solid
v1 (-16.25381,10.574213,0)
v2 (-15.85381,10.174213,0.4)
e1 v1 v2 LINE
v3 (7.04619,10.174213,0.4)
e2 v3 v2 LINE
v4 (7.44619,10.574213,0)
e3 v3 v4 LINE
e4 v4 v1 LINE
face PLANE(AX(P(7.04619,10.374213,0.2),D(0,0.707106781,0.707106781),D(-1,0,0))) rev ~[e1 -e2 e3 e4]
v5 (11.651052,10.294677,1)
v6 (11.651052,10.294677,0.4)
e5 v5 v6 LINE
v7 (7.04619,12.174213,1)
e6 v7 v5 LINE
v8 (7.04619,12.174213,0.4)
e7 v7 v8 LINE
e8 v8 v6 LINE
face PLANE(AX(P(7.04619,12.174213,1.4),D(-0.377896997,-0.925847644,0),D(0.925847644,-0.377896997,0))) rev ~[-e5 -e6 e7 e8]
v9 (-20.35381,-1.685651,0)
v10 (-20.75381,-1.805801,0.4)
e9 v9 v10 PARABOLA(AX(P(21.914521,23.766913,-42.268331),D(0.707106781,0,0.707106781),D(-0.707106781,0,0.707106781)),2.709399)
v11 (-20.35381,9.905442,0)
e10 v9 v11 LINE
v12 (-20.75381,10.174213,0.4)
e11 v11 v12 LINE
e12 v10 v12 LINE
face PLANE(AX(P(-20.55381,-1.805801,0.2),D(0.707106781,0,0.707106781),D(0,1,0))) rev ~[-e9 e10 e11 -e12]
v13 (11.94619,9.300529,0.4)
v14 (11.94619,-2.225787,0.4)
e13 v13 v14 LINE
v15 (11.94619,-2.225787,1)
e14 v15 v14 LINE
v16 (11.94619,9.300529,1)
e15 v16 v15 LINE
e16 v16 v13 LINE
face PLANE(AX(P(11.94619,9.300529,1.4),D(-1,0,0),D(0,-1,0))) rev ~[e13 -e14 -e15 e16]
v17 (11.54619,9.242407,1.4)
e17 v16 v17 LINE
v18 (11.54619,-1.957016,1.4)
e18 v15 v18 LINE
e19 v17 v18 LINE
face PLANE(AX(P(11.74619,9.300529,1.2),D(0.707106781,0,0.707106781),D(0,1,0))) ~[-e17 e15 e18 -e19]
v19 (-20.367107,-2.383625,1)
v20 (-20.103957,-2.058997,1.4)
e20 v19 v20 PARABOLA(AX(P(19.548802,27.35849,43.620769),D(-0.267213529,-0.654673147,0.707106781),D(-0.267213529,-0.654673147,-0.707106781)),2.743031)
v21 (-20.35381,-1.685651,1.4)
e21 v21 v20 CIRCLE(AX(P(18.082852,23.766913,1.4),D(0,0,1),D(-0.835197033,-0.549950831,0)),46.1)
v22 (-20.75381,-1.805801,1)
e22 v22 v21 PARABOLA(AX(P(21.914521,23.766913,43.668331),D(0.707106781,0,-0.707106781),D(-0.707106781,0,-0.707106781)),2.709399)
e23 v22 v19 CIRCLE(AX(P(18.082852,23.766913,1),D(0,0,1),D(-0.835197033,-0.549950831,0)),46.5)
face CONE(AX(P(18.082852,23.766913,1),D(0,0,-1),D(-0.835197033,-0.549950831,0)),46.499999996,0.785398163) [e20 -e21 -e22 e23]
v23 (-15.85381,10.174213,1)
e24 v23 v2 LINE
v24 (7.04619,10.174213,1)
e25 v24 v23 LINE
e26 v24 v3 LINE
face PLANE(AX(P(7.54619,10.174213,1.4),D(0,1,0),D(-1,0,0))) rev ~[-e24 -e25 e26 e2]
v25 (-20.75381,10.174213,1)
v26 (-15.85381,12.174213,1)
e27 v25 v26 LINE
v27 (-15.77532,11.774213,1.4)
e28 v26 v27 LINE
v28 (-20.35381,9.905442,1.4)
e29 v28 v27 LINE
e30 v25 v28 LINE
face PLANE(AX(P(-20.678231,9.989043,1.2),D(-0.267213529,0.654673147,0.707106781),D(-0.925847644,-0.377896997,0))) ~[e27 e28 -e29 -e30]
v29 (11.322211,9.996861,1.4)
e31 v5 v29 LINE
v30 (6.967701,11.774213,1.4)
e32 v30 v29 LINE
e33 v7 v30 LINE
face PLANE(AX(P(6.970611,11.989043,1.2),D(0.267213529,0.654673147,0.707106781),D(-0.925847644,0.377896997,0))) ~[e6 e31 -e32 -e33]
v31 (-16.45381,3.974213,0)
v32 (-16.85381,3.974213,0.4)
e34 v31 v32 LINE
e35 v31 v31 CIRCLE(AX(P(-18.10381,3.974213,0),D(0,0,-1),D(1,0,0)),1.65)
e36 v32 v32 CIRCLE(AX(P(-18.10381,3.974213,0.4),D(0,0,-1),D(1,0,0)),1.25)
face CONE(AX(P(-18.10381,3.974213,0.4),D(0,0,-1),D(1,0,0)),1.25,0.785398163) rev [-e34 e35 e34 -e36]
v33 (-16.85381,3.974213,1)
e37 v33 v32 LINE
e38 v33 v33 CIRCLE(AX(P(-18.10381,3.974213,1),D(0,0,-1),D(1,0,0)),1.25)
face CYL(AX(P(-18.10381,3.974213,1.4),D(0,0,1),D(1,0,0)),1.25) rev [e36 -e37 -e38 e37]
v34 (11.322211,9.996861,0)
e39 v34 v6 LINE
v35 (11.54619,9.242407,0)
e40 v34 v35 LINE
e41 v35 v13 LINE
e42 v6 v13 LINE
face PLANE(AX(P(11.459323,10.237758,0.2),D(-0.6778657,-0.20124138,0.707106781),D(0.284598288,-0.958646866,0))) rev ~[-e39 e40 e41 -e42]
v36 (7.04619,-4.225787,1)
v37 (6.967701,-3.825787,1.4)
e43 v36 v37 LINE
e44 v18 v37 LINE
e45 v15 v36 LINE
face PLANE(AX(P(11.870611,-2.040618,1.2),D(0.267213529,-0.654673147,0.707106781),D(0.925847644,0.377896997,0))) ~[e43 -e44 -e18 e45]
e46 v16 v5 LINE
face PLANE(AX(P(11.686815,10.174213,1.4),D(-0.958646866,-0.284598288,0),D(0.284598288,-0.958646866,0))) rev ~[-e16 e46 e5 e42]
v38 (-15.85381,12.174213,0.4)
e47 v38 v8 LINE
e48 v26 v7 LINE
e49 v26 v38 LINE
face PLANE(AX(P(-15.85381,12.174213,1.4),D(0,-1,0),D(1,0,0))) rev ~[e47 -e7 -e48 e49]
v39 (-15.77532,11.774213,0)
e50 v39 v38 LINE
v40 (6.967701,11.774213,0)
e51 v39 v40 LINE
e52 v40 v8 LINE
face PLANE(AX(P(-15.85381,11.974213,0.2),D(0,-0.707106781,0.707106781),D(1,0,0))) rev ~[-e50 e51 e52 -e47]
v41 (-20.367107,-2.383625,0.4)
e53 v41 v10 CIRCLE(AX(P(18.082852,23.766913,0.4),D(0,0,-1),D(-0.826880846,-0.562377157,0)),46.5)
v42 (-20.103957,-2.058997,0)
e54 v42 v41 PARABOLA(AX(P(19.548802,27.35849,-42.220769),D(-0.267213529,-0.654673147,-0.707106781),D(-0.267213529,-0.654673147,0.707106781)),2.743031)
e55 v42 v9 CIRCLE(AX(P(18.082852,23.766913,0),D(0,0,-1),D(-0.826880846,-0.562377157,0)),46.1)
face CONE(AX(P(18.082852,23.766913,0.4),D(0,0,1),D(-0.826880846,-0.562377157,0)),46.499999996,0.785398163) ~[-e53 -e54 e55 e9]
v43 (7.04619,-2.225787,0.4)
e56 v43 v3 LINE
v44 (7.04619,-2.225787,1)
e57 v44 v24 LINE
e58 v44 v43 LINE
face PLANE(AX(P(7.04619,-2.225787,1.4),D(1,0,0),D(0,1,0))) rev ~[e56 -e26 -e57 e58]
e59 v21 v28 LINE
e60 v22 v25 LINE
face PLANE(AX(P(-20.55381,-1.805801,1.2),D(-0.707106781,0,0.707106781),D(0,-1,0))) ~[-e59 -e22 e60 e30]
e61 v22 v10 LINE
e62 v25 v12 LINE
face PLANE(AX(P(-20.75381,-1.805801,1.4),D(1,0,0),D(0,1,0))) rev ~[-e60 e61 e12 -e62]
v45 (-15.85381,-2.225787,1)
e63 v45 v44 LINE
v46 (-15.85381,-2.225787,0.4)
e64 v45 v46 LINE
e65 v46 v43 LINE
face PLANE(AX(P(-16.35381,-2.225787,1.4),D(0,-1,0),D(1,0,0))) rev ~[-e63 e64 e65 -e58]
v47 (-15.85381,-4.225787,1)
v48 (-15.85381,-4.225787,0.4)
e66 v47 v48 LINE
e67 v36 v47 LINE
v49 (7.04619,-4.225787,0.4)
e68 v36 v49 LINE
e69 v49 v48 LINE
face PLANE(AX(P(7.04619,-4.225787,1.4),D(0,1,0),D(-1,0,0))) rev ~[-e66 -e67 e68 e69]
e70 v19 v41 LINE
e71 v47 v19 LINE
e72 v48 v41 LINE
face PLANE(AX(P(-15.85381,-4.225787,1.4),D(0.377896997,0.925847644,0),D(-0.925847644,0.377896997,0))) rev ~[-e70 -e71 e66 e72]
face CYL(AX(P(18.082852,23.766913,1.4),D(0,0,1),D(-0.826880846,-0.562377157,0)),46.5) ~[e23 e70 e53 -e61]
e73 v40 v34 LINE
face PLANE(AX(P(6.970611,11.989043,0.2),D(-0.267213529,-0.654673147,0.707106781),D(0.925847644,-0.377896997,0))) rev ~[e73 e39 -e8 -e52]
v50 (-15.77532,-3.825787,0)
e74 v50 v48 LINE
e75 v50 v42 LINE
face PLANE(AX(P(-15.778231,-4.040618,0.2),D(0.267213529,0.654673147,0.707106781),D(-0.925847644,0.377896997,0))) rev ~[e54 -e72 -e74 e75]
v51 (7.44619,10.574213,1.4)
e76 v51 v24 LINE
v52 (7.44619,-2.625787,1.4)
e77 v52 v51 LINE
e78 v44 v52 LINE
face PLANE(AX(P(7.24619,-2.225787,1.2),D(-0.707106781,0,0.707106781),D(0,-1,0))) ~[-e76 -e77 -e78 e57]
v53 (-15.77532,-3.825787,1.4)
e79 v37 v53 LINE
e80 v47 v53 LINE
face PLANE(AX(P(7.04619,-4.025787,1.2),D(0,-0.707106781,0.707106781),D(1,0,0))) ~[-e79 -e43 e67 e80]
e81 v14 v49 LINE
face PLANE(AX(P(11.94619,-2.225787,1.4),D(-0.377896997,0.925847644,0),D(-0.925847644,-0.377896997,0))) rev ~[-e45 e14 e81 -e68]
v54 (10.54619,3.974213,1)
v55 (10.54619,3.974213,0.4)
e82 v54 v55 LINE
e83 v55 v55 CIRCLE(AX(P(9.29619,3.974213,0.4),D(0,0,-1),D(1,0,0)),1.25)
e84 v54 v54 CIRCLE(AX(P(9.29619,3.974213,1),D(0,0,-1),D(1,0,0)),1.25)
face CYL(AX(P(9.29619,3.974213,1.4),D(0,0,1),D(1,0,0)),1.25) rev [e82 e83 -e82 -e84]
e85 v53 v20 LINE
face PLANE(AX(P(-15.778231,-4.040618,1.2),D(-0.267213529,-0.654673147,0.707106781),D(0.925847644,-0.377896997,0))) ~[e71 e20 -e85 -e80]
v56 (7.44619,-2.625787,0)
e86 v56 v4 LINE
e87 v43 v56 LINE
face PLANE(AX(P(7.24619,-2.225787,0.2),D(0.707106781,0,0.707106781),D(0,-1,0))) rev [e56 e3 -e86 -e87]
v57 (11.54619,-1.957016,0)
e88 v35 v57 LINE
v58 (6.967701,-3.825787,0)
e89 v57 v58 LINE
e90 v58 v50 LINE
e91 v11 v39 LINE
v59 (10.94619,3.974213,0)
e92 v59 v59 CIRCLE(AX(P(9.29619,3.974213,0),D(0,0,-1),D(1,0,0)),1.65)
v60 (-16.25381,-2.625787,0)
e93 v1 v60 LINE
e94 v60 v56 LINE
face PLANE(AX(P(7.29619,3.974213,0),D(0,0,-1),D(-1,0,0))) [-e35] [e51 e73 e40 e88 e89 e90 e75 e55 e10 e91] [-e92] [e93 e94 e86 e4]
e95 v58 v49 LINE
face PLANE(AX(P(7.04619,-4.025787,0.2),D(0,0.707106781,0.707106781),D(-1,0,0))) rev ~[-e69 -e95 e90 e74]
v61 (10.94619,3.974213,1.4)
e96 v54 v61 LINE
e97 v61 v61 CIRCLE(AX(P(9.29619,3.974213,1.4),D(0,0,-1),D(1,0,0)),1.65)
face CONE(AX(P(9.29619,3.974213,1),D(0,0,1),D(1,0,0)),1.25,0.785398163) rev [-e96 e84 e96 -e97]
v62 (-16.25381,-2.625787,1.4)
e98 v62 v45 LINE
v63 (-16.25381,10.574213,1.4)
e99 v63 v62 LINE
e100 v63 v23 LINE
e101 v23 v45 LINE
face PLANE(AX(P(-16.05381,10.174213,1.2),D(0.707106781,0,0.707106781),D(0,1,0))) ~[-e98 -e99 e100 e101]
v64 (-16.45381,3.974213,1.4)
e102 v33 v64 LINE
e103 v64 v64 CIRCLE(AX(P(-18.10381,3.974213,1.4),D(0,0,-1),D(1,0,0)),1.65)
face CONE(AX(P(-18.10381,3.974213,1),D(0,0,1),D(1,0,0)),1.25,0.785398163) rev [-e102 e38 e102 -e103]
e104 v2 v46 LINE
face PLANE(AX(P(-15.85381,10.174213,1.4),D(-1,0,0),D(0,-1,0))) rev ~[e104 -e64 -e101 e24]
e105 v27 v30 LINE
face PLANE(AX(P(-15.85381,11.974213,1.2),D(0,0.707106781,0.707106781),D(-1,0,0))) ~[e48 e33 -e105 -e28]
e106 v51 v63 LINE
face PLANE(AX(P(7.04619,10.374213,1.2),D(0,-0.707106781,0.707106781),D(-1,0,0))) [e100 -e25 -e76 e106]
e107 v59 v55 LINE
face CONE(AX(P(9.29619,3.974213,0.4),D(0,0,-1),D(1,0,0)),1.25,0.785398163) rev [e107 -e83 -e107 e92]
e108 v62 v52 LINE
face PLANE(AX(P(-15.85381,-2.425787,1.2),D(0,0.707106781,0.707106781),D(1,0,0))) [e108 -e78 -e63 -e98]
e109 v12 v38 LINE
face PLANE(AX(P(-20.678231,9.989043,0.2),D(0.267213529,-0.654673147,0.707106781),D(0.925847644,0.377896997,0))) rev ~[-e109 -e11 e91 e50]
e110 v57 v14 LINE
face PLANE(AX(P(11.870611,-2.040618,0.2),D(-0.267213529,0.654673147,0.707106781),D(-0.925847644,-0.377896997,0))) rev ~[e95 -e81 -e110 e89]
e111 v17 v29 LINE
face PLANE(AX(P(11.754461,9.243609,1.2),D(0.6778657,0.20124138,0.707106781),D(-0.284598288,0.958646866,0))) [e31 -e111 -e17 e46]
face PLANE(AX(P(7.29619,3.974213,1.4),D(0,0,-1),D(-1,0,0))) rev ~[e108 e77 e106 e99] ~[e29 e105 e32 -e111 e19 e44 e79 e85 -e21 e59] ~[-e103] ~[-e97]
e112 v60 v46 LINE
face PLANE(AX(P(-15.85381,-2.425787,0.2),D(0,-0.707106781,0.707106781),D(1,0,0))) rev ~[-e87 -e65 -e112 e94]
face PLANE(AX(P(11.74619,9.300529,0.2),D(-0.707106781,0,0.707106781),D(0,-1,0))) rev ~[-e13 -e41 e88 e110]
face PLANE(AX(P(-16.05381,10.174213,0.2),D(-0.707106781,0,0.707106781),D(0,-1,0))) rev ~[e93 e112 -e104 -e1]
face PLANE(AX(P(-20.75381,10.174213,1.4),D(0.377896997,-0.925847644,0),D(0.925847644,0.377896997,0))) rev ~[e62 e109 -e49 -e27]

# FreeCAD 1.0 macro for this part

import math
import FreeCAD as App
import Part
import Sketcher


def edges_at(feature, points):
    """Names of the edges that pass closest to the given points."""
    edges = feature.Shape.Edges
    near = lambda p: min(range(len(edges)), key=lambda i: edges[i].distToShape(Part.Vertex(*p))[0])
    return sorted({f"Edge{near(p) + 1}" for p in points})


def add_polygon(sketch, points):
    """Adds a closed chain of lines whose ends are joined by coincident constraints."""
    first, n = sketch.GeometryCount, len(points)
    for a, b in zip(points, points[1:] + points[:1]):
        sketch.addGeometry(Part.LineSegment(App.Vector(*a, 0), App.Vector(*b, 0)), False)
    for i in range(n):
        sketch.addConstraint(Sketcher.Constraint("Coincident", first + i, 2, first + (i + 1) % n, 1))

doc = App.newDocument("Part")
params = doc.addObject("Spreadsheet::Sheet", "Params")
for row, (alias, value) in enumerate([
    ("sketch1_diameter", "2.5 mm"),
    ("sketch1_radius", "46.5 mm"),
    ("sketch1_width", "22.9 mm"),
    ("sketch1_height", "12.4 mm"),
    ("pad1_length", "1.4 mm"),
    ("chamfer_size", "0.4 mm"),
], start=1):
    params.set(f"A{row}", alias)
    params.set(f"B{row}", "=" + value)
    params.setAlias(f"B{row}", alias)

body = doc.addObject("PartDesign::Body", "Body")

# Sketch on XY plane
sketch1 = body.newObject("Sketcher::SketchObject", "Sketch")
sketch1.AttachmentSupport = (doc.getObject("XY_Plane"), [""])
sketch1.MapMode = "FlatFace"
sketch1.AttachmentOffset = App.Placement(App.Vector(0, 0, 1.4), App.Rotation())
sketch1.addGeometry(Part.LineSegment(App.Vector(-15.85381, 12.174213, 0), App.Vector(7.04619, 12.174213, 0)), False)  # 0
sketch1.addGeometry(Part.LineSegment(App.Vector(7.04619, 12.174213, 0), App.Vector(11.651052, 10.294677, 0)), False)  # 1
sketch1.addGeometry(Part.LineSegment(App.Vector(11.651052, 10.294677, 0), App.Vector(11.94619, 9.300529, 0)), False)  # 2
sketch1.addGeometry(Part.LineSegment(App.Vector(11.94619, 9.300529, 0), App.Vector(11.94619, -2.225787, 0)), False)  # 3
sketch1.addGeometry(Part.LineSegment(App.Vector(11.94619, -2.225787, 0), App.Vector(7.04619, -4.225787, 0)), False)  # 4
sketch1.addGeometry(Part.LineSegment(App.Vector(7.04619, -4.225787, 0), App.Vector(-15.85381, -4.225787, 0)), False)  # 5
sketch1.addGeometry(Part.LineSegment(App.Vector(-15.85381, -4.225787, 0), App.Vector(-20.367107, -2.383625, 0)), False)  # 6
sketch1.addGeometry(Part.ArcOfCircle(Part.Circle(App.Vector(18.082852, 23.766913, 0), App.Vector(0, 0, 1), 46.5), math.radians(-146.63636), math.radians(-145.779646)), False)  # 7
sketch1.addGeometry(Part.LineSegment(App.Vector(-20.75381, -1.805801, 0), App.Vector(-20.75381, 10.174213, 0)), False)  # 8
sketch1.addGeometry(Part.LineSegment(App.Vector(-20.75381, 10.174213, 0), App.Vector(-15.85381, 12.174213, 0)), False)  # 9
add_polygon(sketch1, [(7.04619, 10.174213), (-15.85381, 10.174213), (-15.85381, -2.225787), (7.04619, -2.225787)])  # lines 10-13
sketch1.addGeometry(Part.Circle(App.Vector(9.29619, 3.974213, 0), App.Vector(0, 0, 1), 1.25), False)  # 14
sketch1.addGeometry(Part.Circle(App.Vector(-18.10381, 3.974213, 0), App.Vector(0, 0, 1), 1.25), False)  # 15
sketch1.addConstraint(Sketcher.Constraint("Coincident", 0, 2, 1, 1))
sketch1.addConstraint(Sketcher.Constraint("Coincident", 1, 2, 2, 1))
sketch1.addConstraint(Sketcher.Constraint("Coincident", 2, 2, 3, 1))
sketch1.addConstraint(Sketcher.Constraint("Coincident", 3, 2, 4, 1))
sketch1.addConstraint(Sketcher.Constraint("Coincident", 4, 2, 5, 1))
sketch1.addConstraint(Sketcher.Constraint("Coincident", 5, 2, 6, 1))
sketch1.addConstraint(Sketcher.Constraint("Coincident", 6, 2, 7, 2))
sketch1.addConstraint(Sketcher.Constraint("Coincident", 7, 1, 8, 1))
sketch1.addConstraint(Sketcher.Constraint("Coincident", 8, 2, 9, 1))
sketch1.addConstraint(Sketcher.Constraint("Coincident", 9, 2, 0, 1))
sketch1.addConstraint(Sketcher.Constraint("Horizontal", 0))
sketch1.addConstraint(Sketcher.Constraint("Vertical", 3))
sketch1.addConstraint(Sketcher.Constraint("Horizontal", 5))
sketch1.addConstraint(Sketcher.Constraint("Vertical", 8))
sketch1.addConstraint(Sketcher.Constraint("Horizontal", 10))
sketch1.addConstraint(Sketcher.Constraint("Vertical", 11))
sketch1.addConstraint(Sketcher.Constraint("Horizontal", 12))
sketch1.addConstraint(Sketcher.Constraint("Vertical", 13))
sketch1.addConstraint(Sketcher.Constraint("Equal", 14, 15))
sketch1.addConstraint(Sketcher.Constraint("Parallel", 1, 6))
sketch1.addConstraint(Sketcher.Constraint("Parallel", 4, 9))
sketch1.addConstraint(Sketcher.Constraint("Horizontal", 14, 3, 15, 3))
sketch1.addConstraint(Sketcher.Constraint("Horizontal", 8, 2, 10, 2))
sketch1.addConstraint(Sketcher.Constraint("Horizontal", 3, 2, 11, 2))
sketch1.addConstraint(Sketcher.Constraint("Vertical", 0, 2, 4, 2))
sketch1.addConstraint(Sketcher.Constraint("Vertical", 5, 2, 9, 2))
sketch1.addConstraint(Sketcher.Constraint("Vertical", 9, 2, 10, 2))
sketch1.addConstraint(Sketcher.Constraint("Vertical", 4, 2, 12, 2))
sketch1.addConstraint(Sketcher.Constraint("Equal", 4, 9))
sketch1.addConstraint(Sketcher.Constraint("Diameter", 14, 2.5))
sketch1.addConstraint(Sketcher.Constraint("Radius", 7, 46.5))
sketch1.addConstraint(Sketcher.Constraint("DistanceX", 0, 1, 0, 2, 22.9))
sketch1.addConstraint(Sketcher.Constraint("DistanceY", 11, 2, 11, 1, 12.4))
sketch1.addConstraint(Sketcher.Constraint("DistanceY", 4, 2, 3, 2, 2.0))
sketch1.addConstraint(Sketcher.Constraint("DistanceX", 15, 3, 14, 3, 27.4))
sketch1.addConstraint(Sketcher.Constraint("DistanceY", 14, 3, 0, 2, 8.2))
sketch1.addConstraint(Sketcher.Constraint("DistanceX", 0, 2, 2, 2, 4.9))
sketch1.addConstraint(Sketcher.Constraint("DistanceX", 0, 2, 14, 3, 2.25))
sketch1.addConstraint(Sketcher.Constraint("DistanceY", 7, 1, -1, 1, 1.805801))
sketch1.addConstraint(Sketcher.Constraint("DistanceY", 14, 3, 7, 3, 19.7927))
sketch1.addConstraint(Sketcher.Constraint("DistanceX", 1, 2, 7, 3, 6.4318))
sketch1.addConstraint(Sketcher.Constraint("Distance", 1, 4.973672))
sketch1.addConstraint(Sketcher.Constraint("DistanceY", 3, 2, 3, 1, 11.526316))
sketch1.addConstraint(Sketcher.Constraint("DistanceY", 8, 1, 8, 2, 11.980014))
sketch1.addConstraint(Sketcher.Constraint("DistanceX", -1, 1, 14, 3, 9.29619))
sketch1.setExpression("Constraints[33]", "Params.sketch1_diameter")
sketch1.setExpression("Constraints[34]", "Params.sketch1_radius")
sketch1.setExpression("Constraints[35]", "Params.sketch1_width")
sketch1.setExpression("Constraints[36]", "Params.sketch1_height")
pad1 = body.newObject("PartDesign::Pad", "Pad")
pad1.Profile = sketch1
pad1.setExpression("Length", "Params.pad1_length")
pad1.Reversed = True
doc.recompute()

chamfer = body.newObject("PartDesign::Chamfer", "Chamfer")
chamfer.Base = (pad1, edges_at(pad1, [
    (8.046, 3.974, 1.4),
    (-19.354, 3.974, 1.4),
    (-4.404, 10.174, 1.4),
    (7.046, 3.974, 1.4),
    (-4.404, -2.226, 1.4),
    (-15.854, 3.974, 1.4),
    (11.799, 9.798, 1.4),
    (9.349, 11.234, 1.4),
    (-4.404, 12.174, 1.4),
    (-18.304, 11.174, 1.4),
    (-20.754, 4.184, 1.4),
    (-20.562, -2.095, 1.4),
    (-18.11, -3.305, 1.4),
    (-4.404, -4.226, 1.4),
    (9.496, -3.226, 1.4),
    (11.946, 3.537, 1.4),
    (11.799, 9.798, 0),
    (7.046, 3.974, 0),
    (-4.404, -2.226, 0),
    (-15.854, 3.974, 0),
    (8.046, 3.974, 0),
    (-19.354, 3.974, 0),
    (9.349, 11.234, 0),
    (-4.404, 12.174, 0),
    (-18.304, 11.174, 0),
    (-20.754, 4.184, 0),
    (-20.562, -2.095, 0),
    (-18.11, -3.305, 0),
    (-4.404, -4.226, 0),
    (9.496, -3.226, 0),
    (11.946, 3.537, 0),
    (-4.404, 10.174, 0),
]))
chamfer.setExpression("Size", "Params.chamfer_size")

doc.recompute()
